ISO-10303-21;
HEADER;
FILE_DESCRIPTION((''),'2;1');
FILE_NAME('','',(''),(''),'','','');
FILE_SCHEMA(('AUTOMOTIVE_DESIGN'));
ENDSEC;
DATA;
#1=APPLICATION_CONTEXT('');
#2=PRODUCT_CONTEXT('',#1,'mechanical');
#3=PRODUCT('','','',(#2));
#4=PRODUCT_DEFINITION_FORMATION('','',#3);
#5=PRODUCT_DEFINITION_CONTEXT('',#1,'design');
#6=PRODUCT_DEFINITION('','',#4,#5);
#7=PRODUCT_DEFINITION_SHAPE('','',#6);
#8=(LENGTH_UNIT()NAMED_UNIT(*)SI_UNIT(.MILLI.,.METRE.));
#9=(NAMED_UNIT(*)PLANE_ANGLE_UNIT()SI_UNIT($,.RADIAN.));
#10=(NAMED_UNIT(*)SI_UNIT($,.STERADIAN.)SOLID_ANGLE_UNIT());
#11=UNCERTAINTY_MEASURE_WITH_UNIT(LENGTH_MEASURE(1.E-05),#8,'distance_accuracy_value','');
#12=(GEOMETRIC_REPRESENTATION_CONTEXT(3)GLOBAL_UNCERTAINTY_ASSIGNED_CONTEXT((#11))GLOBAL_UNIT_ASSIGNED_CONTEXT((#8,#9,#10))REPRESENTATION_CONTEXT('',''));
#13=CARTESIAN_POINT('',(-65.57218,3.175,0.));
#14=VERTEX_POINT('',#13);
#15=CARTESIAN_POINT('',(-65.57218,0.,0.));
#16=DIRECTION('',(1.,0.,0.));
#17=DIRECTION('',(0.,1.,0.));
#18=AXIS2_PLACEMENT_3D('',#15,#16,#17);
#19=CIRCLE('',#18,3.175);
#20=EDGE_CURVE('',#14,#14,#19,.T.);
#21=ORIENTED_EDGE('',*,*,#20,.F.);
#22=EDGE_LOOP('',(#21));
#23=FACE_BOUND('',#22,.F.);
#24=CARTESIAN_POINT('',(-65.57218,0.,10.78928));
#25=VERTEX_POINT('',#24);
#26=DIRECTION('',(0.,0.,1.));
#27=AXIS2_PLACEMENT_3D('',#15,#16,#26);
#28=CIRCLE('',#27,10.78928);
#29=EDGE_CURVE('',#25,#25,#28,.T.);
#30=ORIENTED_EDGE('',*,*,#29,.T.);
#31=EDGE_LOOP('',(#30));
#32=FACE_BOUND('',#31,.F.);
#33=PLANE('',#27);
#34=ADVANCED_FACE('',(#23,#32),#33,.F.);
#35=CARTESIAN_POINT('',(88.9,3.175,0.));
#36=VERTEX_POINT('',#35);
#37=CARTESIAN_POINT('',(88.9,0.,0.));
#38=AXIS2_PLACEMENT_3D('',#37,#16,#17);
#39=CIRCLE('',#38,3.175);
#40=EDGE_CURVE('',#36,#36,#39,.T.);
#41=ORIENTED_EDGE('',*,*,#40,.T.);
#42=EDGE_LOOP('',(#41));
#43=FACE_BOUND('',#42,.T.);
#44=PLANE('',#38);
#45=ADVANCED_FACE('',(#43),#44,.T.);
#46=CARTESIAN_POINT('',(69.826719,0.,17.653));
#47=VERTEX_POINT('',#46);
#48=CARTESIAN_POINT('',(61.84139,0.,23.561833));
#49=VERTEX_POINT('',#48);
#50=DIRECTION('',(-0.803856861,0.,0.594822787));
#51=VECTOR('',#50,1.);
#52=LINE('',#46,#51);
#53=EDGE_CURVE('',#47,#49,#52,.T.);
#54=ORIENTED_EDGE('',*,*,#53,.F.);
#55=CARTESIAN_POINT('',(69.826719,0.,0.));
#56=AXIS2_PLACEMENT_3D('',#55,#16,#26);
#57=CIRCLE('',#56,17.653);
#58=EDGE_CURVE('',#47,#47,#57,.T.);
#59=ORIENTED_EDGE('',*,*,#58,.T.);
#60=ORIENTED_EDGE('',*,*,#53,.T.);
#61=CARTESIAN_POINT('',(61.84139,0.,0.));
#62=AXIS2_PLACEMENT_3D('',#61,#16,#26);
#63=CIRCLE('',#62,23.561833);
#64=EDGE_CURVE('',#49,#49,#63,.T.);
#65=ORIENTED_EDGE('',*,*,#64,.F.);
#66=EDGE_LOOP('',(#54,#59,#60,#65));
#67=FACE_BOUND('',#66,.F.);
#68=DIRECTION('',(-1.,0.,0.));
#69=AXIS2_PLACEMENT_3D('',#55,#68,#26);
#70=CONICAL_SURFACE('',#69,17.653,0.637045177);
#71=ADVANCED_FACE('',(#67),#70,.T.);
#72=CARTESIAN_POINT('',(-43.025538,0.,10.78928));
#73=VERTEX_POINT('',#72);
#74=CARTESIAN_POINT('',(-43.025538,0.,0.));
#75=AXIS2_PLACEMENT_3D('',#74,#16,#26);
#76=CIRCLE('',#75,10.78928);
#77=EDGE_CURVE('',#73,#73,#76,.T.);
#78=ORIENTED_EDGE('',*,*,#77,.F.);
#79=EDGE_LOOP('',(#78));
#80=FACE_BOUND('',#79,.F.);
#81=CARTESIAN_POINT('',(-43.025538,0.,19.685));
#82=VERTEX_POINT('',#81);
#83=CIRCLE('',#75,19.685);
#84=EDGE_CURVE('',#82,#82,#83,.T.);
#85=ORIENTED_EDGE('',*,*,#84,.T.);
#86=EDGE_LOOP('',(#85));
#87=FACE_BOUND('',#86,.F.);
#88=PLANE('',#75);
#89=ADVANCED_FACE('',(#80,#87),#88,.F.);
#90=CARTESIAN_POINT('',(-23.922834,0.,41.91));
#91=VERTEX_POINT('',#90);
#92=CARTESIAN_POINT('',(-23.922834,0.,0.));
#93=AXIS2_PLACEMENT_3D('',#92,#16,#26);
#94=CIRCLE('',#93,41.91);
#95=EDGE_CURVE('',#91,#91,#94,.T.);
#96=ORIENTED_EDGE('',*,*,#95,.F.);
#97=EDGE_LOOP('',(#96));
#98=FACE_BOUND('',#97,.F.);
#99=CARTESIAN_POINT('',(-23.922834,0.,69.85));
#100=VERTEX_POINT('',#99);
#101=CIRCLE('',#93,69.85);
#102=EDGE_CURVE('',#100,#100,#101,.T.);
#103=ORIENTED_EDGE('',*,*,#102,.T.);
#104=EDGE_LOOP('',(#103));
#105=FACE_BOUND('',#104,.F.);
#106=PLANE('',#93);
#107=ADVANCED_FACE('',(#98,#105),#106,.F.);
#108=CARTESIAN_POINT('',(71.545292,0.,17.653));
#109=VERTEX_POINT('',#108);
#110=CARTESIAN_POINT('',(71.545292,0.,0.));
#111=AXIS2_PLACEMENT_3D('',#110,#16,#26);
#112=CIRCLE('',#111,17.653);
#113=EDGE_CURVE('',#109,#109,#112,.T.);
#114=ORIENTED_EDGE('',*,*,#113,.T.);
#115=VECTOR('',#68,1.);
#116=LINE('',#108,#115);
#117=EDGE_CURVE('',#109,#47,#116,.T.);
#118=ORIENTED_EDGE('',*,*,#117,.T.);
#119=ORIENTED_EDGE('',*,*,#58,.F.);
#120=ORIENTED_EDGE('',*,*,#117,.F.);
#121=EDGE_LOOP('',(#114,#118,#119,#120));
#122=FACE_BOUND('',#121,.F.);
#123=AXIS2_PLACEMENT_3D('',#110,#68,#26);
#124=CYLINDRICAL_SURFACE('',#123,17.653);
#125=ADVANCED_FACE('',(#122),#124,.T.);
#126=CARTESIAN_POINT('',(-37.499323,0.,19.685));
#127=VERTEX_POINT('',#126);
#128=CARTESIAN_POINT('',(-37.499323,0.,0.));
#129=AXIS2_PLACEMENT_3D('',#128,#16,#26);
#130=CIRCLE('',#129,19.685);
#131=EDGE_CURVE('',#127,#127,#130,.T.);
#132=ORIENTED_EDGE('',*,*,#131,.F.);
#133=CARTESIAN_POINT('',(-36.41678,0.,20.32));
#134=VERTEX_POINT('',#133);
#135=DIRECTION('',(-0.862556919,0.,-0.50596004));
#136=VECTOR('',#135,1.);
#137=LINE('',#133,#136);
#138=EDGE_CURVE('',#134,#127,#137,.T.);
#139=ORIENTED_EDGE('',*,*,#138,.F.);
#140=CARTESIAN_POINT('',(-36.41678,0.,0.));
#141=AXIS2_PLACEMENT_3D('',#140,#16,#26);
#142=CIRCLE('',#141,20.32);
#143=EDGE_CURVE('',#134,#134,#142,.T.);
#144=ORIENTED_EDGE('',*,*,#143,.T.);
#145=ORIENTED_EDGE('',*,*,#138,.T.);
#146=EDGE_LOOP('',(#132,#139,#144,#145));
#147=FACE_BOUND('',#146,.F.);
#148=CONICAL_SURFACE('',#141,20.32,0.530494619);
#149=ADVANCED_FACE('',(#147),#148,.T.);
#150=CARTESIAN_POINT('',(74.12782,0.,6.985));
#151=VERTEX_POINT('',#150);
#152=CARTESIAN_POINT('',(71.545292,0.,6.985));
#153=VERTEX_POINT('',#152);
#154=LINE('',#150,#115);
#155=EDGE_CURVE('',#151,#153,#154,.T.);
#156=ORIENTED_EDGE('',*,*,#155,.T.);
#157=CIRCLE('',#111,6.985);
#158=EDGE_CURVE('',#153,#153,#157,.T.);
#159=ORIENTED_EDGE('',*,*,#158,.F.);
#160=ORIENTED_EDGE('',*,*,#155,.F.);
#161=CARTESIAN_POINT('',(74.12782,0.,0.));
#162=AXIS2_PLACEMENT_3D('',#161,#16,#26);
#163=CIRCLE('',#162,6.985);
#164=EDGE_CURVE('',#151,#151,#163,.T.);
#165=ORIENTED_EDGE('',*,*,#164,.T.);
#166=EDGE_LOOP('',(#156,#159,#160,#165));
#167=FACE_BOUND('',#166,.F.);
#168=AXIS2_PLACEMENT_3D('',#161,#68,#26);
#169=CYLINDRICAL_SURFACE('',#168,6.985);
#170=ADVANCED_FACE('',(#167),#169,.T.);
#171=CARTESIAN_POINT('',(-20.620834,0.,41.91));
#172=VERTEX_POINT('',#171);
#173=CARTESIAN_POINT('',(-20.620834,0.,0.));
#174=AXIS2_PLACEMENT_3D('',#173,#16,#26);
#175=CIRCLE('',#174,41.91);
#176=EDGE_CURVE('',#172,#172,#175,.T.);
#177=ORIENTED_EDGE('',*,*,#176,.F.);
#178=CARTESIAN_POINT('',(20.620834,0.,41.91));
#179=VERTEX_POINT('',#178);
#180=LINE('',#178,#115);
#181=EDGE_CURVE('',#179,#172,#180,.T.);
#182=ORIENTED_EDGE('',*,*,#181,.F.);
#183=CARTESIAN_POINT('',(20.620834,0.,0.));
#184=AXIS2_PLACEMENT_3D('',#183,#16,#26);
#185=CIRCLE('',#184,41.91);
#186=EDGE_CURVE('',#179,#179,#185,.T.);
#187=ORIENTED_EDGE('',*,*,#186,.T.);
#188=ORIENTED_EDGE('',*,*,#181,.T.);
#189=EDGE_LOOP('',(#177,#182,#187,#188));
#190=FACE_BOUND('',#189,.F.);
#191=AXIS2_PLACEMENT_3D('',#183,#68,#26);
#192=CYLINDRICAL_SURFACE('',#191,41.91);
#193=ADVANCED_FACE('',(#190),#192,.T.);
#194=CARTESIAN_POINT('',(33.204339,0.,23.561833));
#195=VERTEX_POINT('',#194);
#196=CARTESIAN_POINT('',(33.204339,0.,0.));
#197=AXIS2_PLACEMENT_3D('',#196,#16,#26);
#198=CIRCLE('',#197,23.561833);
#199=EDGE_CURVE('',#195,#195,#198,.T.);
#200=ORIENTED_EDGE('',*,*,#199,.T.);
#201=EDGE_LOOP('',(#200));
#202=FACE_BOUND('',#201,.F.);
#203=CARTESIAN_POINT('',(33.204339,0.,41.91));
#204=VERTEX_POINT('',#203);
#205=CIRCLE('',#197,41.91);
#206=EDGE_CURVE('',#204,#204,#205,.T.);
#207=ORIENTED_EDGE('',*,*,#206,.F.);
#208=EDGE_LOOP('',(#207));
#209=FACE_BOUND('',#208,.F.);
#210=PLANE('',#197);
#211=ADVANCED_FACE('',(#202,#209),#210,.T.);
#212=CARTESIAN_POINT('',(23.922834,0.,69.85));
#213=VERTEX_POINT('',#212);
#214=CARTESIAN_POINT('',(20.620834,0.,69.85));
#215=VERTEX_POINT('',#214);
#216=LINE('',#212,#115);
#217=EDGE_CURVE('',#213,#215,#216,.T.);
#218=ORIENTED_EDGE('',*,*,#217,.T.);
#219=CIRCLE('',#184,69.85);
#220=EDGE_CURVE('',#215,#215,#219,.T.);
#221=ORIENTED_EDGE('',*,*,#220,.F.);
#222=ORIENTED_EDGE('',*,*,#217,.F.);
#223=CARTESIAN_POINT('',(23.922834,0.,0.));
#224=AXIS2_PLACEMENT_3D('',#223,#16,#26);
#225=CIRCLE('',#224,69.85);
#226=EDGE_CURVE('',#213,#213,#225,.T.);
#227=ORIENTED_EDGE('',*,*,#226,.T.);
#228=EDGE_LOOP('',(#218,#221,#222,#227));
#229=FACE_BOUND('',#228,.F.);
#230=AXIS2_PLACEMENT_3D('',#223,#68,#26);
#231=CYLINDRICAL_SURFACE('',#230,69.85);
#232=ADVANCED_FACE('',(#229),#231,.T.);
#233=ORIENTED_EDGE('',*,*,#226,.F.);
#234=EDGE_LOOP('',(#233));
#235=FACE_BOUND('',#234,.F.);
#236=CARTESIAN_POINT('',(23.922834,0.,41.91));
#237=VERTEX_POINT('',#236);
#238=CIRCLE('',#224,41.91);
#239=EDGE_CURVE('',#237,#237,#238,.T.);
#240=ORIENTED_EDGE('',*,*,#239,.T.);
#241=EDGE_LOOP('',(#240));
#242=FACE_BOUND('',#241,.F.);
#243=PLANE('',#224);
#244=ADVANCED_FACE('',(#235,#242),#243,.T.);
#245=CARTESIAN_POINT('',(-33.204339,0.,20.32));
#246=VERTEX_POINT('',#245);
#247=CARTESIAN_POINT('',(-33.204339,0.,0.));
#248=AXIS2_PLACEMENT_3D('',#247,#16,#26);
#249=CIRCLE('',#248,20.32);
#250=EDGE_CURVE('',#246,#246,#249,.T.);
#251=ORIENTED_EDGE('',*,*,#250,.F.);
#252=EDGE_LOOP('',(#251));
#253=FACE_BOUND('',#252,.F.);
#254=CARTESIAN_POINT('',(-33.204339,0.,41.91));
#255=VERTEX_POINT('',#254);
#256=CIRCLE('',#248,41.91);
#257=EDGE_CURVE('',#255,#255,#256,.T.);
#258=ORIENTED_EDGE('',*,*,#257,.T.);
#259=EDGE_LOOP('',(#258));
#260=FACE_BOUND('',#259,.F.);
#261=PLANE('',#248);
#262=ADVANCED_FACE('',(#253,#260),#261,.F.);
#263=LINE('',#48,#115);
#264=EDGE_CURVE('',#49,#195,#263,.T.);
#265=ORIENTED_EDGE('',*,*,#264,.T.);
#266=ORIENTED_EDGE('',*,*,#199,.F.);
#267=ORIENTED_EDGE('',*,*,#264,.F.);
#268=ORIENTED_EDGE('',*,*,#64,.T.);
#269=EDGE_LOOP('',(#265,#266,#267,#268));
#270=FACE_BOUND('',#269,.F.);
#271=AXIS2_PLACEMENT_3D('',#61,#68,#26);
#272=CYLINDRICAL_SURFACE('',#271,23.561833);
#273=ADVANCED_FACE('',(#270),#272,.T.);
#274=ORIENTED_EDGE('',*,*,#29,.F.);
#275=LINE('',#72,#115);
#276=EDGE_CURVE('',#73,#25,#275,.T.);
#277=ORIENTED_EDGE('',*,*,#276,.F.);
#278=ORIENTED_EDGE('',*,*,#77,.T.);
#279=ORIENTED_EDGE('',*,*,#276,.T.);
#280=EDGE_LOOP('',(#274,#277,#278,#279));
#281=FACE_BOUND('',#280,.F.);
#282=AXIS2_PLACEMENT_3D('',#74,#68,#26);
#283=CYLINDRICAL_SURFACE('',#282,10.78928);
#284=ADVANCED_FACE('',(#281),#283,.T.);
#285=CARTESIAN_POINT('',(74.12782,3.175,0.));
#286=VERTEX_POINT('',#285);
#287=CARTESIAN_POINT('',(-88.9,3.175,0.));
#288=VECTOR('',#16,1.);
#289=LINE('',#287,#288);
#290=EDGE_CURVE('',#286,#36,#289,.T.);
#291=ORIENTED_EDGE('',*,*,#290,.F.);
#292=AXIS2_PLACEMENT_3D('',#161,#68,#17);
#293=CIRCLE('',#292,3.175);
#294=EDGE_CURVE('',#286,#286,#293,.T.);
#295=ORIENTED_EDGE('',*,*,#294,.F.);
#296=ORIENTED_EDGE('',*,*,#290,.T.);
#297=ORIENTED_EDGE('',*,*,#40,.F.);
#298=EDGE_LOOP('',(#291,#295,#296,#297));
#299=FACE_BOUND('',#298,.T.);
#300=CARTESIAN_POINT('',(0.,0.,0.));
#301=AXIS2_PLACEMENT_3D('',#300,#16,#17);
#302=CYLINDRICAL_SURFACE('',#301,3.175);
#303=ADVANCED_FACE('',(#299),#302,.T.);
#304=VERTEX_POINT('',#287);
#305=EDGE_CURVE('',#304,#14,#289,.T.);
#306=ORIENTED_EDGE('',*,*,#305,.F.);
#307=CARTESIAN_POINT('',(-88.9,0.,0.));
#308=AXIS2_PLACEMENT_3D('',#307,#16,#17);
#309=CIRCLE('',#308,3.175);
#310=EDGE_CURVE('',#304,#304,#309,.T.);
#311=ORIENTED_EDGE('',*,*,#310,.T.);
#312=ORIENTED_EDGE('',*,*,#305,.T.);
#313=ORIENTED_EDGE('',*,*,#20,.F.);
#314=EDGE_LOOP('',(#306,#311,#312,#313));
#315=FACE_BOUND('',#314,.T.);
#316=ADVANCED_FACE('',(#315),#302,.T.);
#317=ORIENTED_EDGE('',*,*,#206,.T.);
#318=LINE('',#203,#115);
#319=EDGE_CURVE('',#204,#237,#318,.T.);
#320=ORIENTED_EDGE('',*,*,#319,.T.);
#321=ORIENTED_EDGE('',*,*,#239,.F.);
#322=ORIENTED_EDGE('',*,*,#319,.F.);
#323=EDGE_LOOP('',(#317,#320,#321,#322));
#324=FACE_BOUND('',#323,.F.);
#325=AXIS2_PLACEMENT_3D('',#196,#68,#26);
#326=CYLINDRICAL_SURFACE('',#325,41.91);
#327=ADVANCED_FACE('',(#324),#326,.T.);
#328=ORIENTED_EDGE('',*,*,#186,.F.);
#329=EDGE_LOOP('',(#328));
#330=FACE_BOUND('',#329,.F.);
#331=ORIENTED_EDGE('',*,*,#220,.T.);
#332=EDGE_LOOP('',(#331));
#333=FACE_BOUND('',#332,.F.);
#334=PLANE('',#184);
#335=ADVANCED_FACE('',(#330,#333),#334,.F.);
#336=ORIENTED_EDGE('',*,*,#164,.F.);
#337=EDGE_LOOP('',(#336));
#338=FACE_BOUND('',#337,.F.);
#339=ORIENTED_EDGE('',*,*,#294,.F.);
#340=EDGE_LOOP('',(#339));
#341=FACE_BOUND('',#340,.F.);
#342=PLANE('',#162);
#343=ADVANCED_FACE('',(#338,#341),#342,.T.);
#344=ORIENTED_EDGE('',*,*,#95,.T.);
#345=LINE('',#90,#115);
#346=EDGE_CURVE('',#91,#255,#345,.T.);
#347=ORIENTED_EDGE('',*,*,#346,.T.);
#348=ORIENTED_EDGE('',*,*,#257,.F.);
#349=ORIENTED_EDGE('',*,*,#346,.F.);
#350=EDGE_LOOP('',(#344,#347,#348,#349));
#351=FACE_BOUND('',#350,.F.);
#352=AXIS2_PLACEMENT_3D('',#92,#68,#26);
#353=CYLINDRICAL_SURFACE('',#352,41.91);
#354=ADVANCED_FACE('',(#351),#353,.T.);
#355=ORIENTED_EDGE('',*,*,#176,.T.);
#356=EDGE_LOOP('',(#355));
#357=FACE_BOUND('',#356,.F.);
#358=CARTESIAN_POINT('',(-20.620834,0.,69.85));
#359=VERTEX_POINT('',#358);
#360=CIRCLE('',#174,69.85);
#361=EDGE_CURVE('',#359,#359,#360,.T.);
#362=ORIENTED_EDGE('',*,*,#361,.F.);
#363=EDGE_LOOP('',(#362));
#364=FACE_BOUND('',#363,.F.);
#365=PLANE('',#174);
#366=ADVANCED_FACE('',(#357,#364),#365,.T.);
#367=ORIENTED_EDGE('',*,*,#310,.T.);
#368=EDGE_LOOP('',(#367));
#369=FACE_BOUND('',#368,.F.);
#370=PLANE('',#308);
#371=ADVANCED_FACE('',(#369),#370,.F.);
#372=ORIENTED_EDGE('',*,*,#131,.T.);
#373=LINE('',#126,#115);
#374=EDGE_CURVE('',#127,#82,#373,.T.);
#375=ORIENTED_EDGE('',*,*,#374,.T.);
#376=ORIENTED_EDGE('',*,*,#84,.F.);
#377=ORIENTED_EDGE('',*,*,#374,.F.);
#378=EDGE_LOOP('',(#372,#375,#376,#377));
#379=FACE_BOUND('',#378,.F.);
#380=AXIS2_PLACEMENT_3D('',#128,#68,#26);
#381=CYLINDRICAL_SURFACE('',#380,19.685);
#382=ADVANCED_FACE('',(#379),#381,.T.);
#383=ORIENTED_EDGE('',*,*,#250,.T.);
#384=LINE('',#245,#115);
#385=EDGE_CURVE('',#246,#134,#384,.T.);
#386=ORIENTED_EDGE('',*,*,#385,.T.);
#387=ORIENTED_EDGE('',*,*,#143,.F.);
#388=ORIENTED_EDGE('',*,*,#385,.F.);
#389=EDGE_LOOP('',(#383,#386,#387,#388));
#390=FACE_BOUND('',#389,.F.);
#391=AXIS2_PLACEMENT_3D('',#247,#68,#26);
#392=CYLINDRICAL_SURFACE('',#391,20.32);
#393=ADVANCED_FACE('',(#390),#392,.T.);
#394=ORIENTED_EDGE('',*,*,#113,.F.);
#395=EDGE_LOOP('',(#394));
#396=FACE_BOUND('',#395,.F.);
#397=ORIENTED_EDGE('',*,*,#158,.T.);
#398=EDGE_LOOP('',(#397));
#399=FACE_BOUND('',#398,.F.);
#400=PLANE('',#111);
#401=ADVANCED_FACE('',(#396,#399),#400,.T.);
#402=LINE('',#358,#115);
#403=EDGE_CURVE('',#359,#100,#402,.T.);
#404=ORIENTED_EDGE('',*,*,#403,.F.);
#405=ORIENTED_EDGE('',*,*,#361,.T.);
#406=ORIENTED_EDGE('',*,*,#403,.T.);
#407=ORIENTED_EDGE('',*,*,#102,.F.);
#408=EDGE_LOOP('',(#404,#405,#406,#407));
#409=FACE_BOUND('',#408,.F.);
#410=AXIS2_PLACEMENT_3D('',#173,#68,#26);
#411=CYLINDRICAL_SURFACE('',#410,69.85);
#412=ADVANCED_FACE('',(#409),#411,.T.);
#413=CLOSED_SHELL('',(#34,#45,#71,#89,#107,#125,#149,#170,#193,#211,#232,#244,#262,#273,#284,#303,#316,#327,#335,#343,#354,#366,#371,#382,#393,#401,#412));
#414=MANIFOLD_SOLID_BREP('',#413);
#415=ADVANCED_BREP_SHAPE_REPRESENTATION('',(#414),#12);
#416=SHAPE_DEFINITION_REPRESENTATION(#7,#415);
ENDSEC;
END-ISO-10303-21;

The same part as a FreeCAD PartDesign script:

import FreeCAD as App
import Part
import Sketcher
from FreeCAD import Vector
Q = App.Units.Quantity


def add_polygon(sketch, points):
    """Adds a closed chain of lines whose ends are joined by coincident constraints."""
    first, n = sketch.GeometryCount, len(points)
    for a, b in zip(points, points[1:] + points[:1]):
        sketch.addGeometry(Part.LineSegment(App.Vector(*a, 0), App.Vector(*b, 0)), False)
    for i in range(n):
        sketch.addConstraint(Sketcher.Constraint("Coincident", first + i, 2, first + (i + 1) % n, 1))

doc = App.newDocument("Part")
params = doc.addObject("Spreadsheet::Sheet", "Params")
for row, (alias, value) in enumerate([
    ("sketch1_diameter", "0.25 in"),
    ("pad1_length", "7 in"),
    ("sketch2_width", "5.5 in"),
    ("sketch2_height", "1.1 in"),
    ("sketch2_width2", "0.13 in"),
    ("sketch2_height2", "0.15 in"),
    ("sketch2_height3", "0.42 in"),
    ("revolution_angle", "360 deg"),
], start=1):
    params.set(f"A{row}", alias)
    params.set(f"B{row}", "=" + value)
    params.setAlias(f"B{row}", alias)

body = doc.addObject("PartDesign::Body", "Body")

sketch1 = body.newObject("Sketcher::SketchObject", "Sketch")
sketch1.AttachmentSupport = (doc.getObject("YZ_Plane"), [""])
sketch1.MapMode = "FlatFace"
sketch1.addGeometry(Part.Circle(Vector(0, 0, 0), Vector(0, 0, 1), 3.2), False)
sketch1.addConstraint([
    Sketcher.Constraint("Coincident", 0, 3, -1, 1),
    Sketcher.Constraint("Diameter", 0, Q("0.25 in")),
])
sketch1.setExpression("Constraints[1]", "Params.sketch1_diameter")
pad1 = body.newObject("PartDesign::Pad", "Pad")
pad1.Profile = sketch1
pad1.setExpression("Length", "Params.pad1_length")
pad1.Midplane = True

sketch2 = body.newObject("Sketcher::SketchObject", "Sketch001")
sketch2.AttachmentSupport = (doc.getObject("XZ_Plane"), [""])
sketch2.MapMode = "FlatFace"
add_polygon(sketch2, [(-65.6, 10.8), (-65.6, 3.2), (74.1, 3.2), (74.1, 7), (71.5, 7), (71.5, 17.7), (69.8, 17.7), (61.8, 23.6), (33.2, 23.6), (33.2, 41.9), (23.9, 41.9), (23.9, 69.8), (20.6, 69.8), (20.6, 41.9), (-20.6, 41.9), (-20.6, 69.8), (-23.9, 69.8), (-23.9, 41.9), (-33.2, 41.9), (-33.2, 20.3), (-36.4, 20.3), (-37.5, 19.7), (-43, 19.7), (-43, 10.8)])
sketch2.addConstraint([
    Sketcher.Constraint("Vertical", 0),
    Sketcher.Constraint("Horizontal", 1),
    Sketcher.Constraint("Vertical", 2),
    Sketcher.Constraint("Horizontal", 3),
    Sketcher.Constraint("Vertical", 4),
    Sketcher.Constraint("Horizontal", 5),
    Sketcher.Constraint("Horizontal", 7),
    Sketcher.Constraint("Vertical", 8),
    Sketcher.Constraint("Horizontal", 9),
    Sketcher.Constraint("Vertical", 10),
    Sketcher.Constraint("Horizontal", 11),
    Sketcher.Constraint("Vertical", 12),
    Sketcher.Constraint("Horizontal", 13),
    Sketcher.Constraint("Vertical", 14),
    Sketcher.Constraint("Horizontal", 15),
    Sketcher.Constraint("Vertical", 16),
    Sketcher.Constraint("Horizontal", 17),
    Sketcher.Constraint("Vertical", 18),
    Sketcher.Constraint("Horizontal", 19),
    Sketcher.Constraint("Horizontal", 21),
    Sketcher.Constraint("Vertical", 22),
    Sketcher.Constraint("Horizontal", 23),
    Sketcher.Constraint("Symmetric", 11, 2, 14, 2, -2),
    Sketcher.Constraint("Symmetric", 9, 2, 16, 2, -2),
    Sketcher.Constraint("Horizontal", 9, 2, 12, 2),
    Sketcher.Constraint("Equal", 9, 17),
    Sketcher.Constraint("DistanceX", 1, 1, 1, 2, Q("5.5 in")),
    Sketcher.Constraint("DistanceY", 10, 1, 10, 2, Q("1.1 in")),
    Sketcher.Constraint("DistanceX", 11, 2, 11, 1, Q("0.13 in")),
    Sketcher.Constraint("DistanceY", 2, 1, 2, 2, Q("0.15 in")),
    Sketcher.Constraint("DistanceY", 4, 1, 4, 2, Q("0.42 in")),
    Sketcher.Constraint("DistanceY", 18, 2, 18, 1, Q("0.85 in")),
    Sketcher.Constraint("DistanceY", -1, 1, 18, 2, Q("0.8 in")),
    Sketcher.Constraint("Angle", 6, Q("143.5 deg")),
    Sketcher.Constraint("DistanceY", 0, 2, 21, 2, Q("0.65 in")),
    Sketcher.Constraint("DistanceY", -1, 1, 0, 2, Q("0.125 in")),
    Sketcher.Constraint("DistanceX", 9, 2, 4, 2, Q("1.8748999 in")),
    Sketcher.Constraint("DistanceX", 7, 2, 7, 1, Q("28.637051 mm")),
    Sketcher.Constraint("DistanceX", 19, 2, 19, 1, Q("3.212441 mm")),
    Sketcher.Constraint("DistanceX", 23, 2, 23, 1, Q("22.546642 mm")),
    Sketcher.Constraint("DistanceY", 0, 2, 0, 1, Q("7.61428 mm")),
    Sketcher.Constraint("DistanceX", 5, 2, 2, 2, Q("4.301101 mm")),
    Sketcher.Constraint("DistanceX", 0, 2, 19, 2, Q("29.1554 mm")),
    Sketcher.Constraint("Distance", 6, Q("9.93377 mm")),
    Sketcher.Constraint("Distance", 20, Q("1.25504 mm")),
    Sketcher.Constraint("DistanceX", 3, 2, 3, 1, Q("2.582528 mm")),
])
sketch2.setExpression("Constraints[50]", "Params.sketch2_width")
sketch2.setExpression("Constraints[51]", "Params.sketch2_height")
sketch2.setExpression("Constraints[52]", "Params.sketch2_width2")
sketch2.setExpression("Constraints[53]", "Params.sketch2_height2")
sketch2.setExpression("Constraints[54]", "Params.sketch2_height3")
revolution = body.newObject("PartDesign::Revolution", "Revolution")
revolution.Profile = sketch2
revolution.ReferenceAxis = (sketch2, ["H_Axis"])
revolution.setExpression("Angle", "Params.revolution_angle")

doc.recompute()
